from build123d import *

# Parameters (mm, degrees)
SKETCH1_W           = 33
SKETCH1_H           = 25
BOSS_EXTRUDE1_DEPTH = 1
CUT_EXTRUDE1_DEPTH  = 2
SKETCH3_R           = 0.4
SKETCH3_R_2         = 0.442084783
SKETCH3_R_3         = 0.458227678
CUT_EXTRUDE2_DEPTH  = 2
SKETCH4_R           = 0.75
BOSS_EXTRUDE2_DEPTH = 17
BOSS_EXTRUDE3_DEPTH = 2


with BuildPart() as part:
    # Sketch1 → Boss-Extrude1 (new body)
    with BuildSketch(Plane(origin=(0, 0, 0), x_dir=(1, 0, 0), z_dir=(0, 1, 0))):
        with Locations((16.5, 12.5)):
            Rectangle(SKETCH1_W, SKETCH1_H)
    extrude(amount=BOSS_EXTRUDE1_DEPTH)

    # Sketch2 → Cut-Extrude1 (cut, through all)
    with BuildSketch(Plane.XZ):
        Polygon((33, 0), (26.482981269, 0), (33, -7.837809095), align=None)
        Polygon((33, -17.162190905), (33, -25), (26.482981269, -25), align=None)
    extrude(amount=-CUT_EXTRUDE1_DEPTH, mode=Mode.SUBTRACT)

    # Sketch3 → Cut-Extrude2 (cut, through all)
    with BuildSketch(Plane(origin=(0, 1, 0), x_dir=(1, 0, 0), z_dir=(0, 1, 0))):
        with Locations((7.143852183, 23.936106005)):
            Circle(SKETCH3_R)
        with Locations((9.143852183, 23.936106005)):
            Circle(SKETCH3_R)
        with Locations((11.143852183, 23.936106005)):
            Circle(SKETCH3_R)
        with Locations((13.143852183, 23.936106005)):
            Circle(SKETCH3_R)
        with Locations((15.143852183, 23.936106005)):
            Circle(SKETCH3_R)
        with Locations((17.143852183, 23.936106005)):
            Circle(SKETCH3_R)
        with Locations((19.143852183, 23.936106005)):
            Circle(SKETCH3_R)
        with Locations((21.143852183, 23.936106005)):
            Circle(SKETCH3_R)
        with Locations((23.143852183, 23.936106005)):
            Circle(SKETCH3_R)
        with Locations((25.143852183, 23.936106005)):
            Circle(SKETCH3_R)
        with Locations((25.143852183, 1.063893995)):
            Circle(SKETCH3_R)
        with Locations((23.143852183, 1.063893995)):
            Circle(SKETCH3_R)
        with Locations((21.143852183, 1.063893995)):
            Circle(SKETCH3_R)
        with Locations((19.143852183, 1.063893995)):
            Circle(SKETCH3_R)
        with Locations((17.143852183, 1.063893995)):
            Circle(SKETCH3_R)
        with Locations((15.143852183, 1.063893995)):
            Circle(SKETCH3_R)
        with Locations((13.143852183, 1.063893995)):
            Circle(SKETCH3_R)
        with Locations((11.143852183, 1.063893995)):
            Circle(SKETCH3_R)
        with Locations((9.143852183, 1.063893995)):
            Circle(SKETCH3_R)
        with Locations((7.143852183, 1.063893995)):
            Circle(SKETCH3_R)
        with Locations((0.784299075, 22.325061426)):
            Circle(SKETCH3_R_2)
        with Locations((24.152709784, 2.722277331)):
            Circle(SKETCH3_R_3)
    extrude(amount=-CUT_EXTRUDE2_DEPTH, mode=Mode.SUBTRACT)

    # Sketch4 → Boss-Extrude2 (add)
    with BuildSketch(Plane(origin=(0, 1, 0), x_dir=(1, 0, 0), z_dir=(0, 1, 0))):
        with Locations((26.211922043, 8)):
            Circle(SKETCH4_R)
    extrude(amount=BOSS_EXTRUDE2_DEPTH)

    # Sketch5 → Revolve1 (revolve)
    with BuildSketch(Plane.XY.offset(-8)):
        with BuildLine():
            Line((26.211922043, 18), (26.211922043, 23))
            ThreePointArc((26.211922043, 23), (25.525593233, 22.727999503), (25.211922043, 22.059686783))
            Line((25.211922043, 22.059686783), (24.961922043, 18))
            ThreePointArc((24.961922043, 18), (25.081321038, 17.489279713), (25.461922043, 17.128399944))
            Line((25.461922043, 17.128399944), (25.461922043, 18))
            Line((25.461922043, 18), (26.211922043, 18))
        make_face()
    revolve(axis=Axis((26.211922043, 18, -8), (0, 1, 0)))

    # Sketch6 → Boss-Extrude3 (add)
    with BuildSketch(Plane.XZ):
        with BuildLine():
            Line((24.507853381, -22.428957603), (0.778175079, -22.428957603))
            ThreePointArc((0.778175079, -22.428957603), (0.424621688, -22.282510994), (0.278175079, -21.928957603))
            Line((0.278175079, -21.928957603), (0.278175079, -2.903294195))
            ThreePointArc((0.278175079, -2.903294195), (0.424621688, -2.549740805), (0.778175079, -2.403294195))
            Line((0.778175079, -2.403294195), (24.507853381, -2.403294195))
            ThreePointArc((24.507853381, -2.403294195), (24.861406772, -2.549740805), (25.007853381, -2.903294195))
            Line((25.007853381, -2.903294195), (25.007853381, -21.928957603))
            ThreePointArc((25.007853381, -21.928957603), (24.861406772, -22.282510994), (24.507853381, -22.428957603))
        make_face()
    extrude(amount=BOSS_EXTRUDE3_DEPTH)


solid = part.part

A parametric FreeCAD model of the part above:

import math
import FreeCAD as App
import Part
import Sketcher

V = App.Vector
Q = App.Units.Quantity

doc = App.newDocument("Part")
body = doc.addObject("PartDesign::Body", "Body")

# Sketch on XZ plane
sketch1 = body.newObject("Sketcher::SketchObject", "Sketch")
sketch1.AttachmentSupport = (doc.getObject("XZ_Plane"), [""])
sketch1.MapMode = "FlatFace"
sketch1.addGeometry([
    Part.LineSegment(V(0, -25, 0), V(0, 0, 0)),
    Part.LineSegment(V(0, 0, 0), V(33, 0, 0)),
    Part.LineSegment(V(33, 0, 0), V(33, -25, 0)),
    Part.LineSegment(V(33, -25, 0), V(0, -25, 0)),
], False)
sketch1.addConstraint([
    Sketcher.Constraint("Coincident", 0, 2, 1, 1),
    Sketcher.Constraint("Coincident", 1, 2, 2, 1),
    Sketcher.Constraint("Coincident", 2, 2, 3, 1),
    Sketcher.Constraint("Coincident", 3, 2, 0, 1),
    Sketcher.Constraint("Vertical", 0),
    Sketcher.Constraint("Horizontal", 1),
    Sketcher.Constraint("Vertical", 2),
    Sketcher.Constraint("Horizontal", 3),
    Sketcher.Constraint("Coincident", 0, 2, -1, 1),
    Sketcher.Constraint("DistanceX", 1, 1, 1, 2, Q("33 mm")),
    Sketcher.Constraint("DistanceY", 0, 1, 0, 2, Q("25 mm")),
])
pad1 = body.newObject("PartDesign::Pad", "Pad")
pad1.Profile = sketch1
pad1.Length = 1
pad1.Reversed = True

# Sketch on XZ plane
sketch2 = body.newObject("Sketcher::SketchObject", "Sketch001")
sketch2.AttachmentSupport = (doc.getObject("XZ_Plane"), [""])
sketch2.MapMode = "FlatFace"
sketch2.addGeometry([
    Part.LineSegment(V(33, 0, 0), V(26, 0, 0)),  # 0
    Part.LineSegment(V(26, 0, 0), V(33, -8, 0)),  # 1
    Part.LineSegment(V(33, -8, 0), V(33, 0, 0)),  # 2
    Part.LineSegment(V(33, -25, 0), V(33, -17, 0)),  # 3
    Part.LineSegment(V(33, -17, 0), V(26, -25, 0)),  # 4
    Part.LineSegment(V(26, -25, 0), V(33, -25, 0)),  # 5
], False)
sketch2.addConstraint([
    Sketcher.Constraint("Coincident", 0, 2, 1, 1),
    Sketcher.Constraint("Coincident", 1, 2, 2, 1),
    Sketcher.Constraint("Coincident", 2, 2, 0, 1),
    Sketcher.Constraint("Coincident", 3, 2, 4, 1),
    Sketcher.Constraint("Coincident", 4, 2, 5, 1),
    Sketcher.Constraint("Coincident", 5, 2, 3, 1),
    Sketcher.Constraint("Horizontal", 0),
    Sketcher.Constraint("Vertical", 2),
    Sketcher.Constraint("Vertical", 3),
    Sketcher.Constraint("Horizontal", 5),
    Sketcher.Constraint("PointOnObject", 0, 2, -1),
    Sketcher.Constraint("Vertical", 2, 2, 3, 2),
    Sketcher.Constraint("Vertical", 0, 2, 4, 2),
    Sketcher.Constraint("Equal", 2, 3),
    Sketcher.Constraint("DistanceX", -1, 1, 1, 2, Q("33 mm")),
    Sketcher.Constraint("DistanceY", 4, 2, -1, 1, Q("25 mm")),
    Sketcher.Constraint("DistanceX", 0, 2, 0, 1, Q("6.517019 mm")),
    Sketcher.Constraint("DistanceY", 2, 1, 2, 2, Q("7.837809 mm")),
])
pocket1 = body.newObject("PartDesign::Pocket", "Pocket")
pocket1.Profile = sketch2
pocket1.Type = "ThroughAll"

# Sketch on XZ plane
sketch3 = body.newObject("Sketcher::SketchObject", "Sketch002")
sketch3.AttachmentSupport = (doc.getObject("XZ_Plane"), [""])
sketch3.MapMode = "FlatFace"
sketch3.AttachmentOffset = App.Placement(V(0, 0, -1), App.Rotation())
sketch3.addGeometry([
    Part.Circle(V(7.14, -23.94, 0), V(0, 0, 1), 0.4),  # 0
    Part.Circle(V(9.14, -23.94, 0), V(0, 0, 1), 0.4),  # 1
    Part.Circle(V(11.14, -23.94, 0), V(0, 0, 1), 0.4),  # 2
    Part.Circle(V(13.14, -23.94, 0), V(0, 0, 1), 0.4),  # 3
    Part.Circle(V(15.14, -23.94, 0), V(0, 0, 1), 0.4),  # 4
    Part.Circle(V(17.14, -23.94, 0), V(0, 0, 1), 0.4),  # 5
    Part.Circle(V(19.14, -23.94, 0), V(0, 0, 1), 0.4),  # 6
    Part.Circle(V(21.14, -23.94, 0), V(0, 0, 1), 0.4),  # 7
    Part.Circle(V(23.14, -23.94, 0), V(0, 0, 1), 0.4),  # 8
    Part.Circle(V(25.14, -23.94, 0), V(0, 0, 1), 0.4),  # 9
    Part.Circle(V(25.14, -1.06, 0), V(0, 0, 1), 0.4),  # 10
    Part.Circle(V(23.14, -1.06, 0), V(0, 0, 1), 0.4),  # 11
    Part.Circle(V(21.14, -1.06, 0), V(0, 0, 1), 0.4),  # 12
    Part.Circle(V(19.14, -1.06, 0), V(0, 0, 1), 0.4),  # 13
    Part.Circle(V(17.14, -1.06, 0), V(0, 0, 1), 0.4),  # 14
    Part.Circle(V(15.14, -1.06, 0), V(0, 0, 1), 0.4),  # 15
    Part.Circle(V(13.14, -1.06, 0), V(0, 0, 1), 0.4),  # 16
    Part.Circle(V(11.14, -1.06, 0), V(0, 0, 1), 0.4),  # 17
    Part.Circle(V(9.14, -1.06, 0), V(0, 0, 1), 0.4),  # 18
    Part.Circle(V(7.14, -1.06, 0), V(0, 0, 1), 0.4),  # 19
    Part.Circle(V(0.78, -22.33, 0), V(0, 0, 1), 0.44),  # 20
    Part.Circle(V(24.15, -2.72, 0), V(0, 0, 1), 0.46),  # 21
], False)
sketch3.addConstraint([
    Sketcher.Constraint("Equal", 0, 1),
    Sketcher.Constraint("Equal", 1, 2),
    Sketcher.Constraint("Equal", 2, 3),
    Sketcher.Constraint("Equal", 3, 4),
    Sketcher.Constraint("Equal", 4, 5),
    Sketcher.Constraint("Equal", 5, 6),
    Sketcher.Constraint("Equal", 6, 7),
    Sketcher.Constraint("Equal", 7, 8),
    Sketcher.Constraint("Equal", 8, 9),
    Sketcher.Constraint("Equal", 9, 10),
    Sketcher.Constraint("Equal", 10, 11),
    Sketcher.Constraint("Equal", 11, 12),
    Sketcher.Constraint("Equal", 12, 13),
    Sketcher.Constraint("Equal", 13, 14),
    Sketcher.Constraint("Equal", 14, 15),
    Sketcher.Constraint("Equal", 15, 16),
    Sketcher.Constraint("Equal", 16, 17),
    Sketcher.Constraint("Equal", 17, 18),
    Sketcher.Constraint("Equal", 18, 19),
    Sketcher.Constraint("Horizontal", 0, 3, 1, 3),
    Sketcher.Constraint("Horizontal", 1, 3, 2, 3),
    Sketcher.Constraint("Horizontal", 2, 3, 3, 3),
    Sketcher.Constraint("Horizontal", 3, 3, 4, 3),
    Sketcher.Constraint("Horizontal", 4, 3, 5, 3),
    Sketcher.Constraint("Horizontal", 5, 3, 6, 3),
    Sketcher.Constraint("Horizontal", 6, 3, 7, 3),
    Sketcher.Constraint("Horizontal", 7, 3, 8, 3),
    Sketcher.Constraint("Horizontal", 8, 3, 9, 3),
    Sketcher.Constraint("Horizontal", 10, 3, 11, 3),
    Sketcher.Constraint("Horizontal", 11, 3, 12, 3),
    Sketcher.Constraint("Horizontal", 12, 3, 13, 3),
    Sketcher.Constraint("Horizontal", 13, 3, 14, 3),
    Sketcher.Constraint("Horizontal", 14, 3, 15, 3),
    Sketcher.Constraint("Horizontal", 15, 3, 16, 3),
    Sketcher.Constraint("Horizontal", 16, 3, 17, 3),
    Sketcher.Constraint("Horizontal", 17, 3, 18, 3),
    Sketcher.Constraint("Horizontal", 18, 3, 19, 3),
    Sketcher.Constraint("Vertical", 9, 3, 10, 3),
    Sketcher.Constraint("Vertical", 8, 3, 11, 3),
    Sketcher.Constraint("Vertical", 7, 3, 12, 3),
    Sketcher.Constraint("Vertical", 6, 3, 13, 3),
    Sketcher.Constraint("Vertical", 5, 3, 14, 3),
    Sketcher.Constraint("Vertical", 4, 3, 15, 3),
    Sketcher.Constraint("Vertical", 3, 3, 16, 3),
    Sketcher.Constraint("Vertical", 2, 3, 17, 3),
    Sketcher.Constraint("Vertical", 1, 3, 18, 3),
    Sketcher.Constraint("Vertical", 0, 3, 19, 3),
    Sketcher.Constraint("Diameter", 0, Q("0.8 mm")),
    Sketcher.Constraint("DistanceX", 0, 3, 1, 3, Q("2 mm")),
    Sketcher.Constraint("DistanceX", 1, 3, 2, 3, Q("2 mm")),
    Sketcher.Constraint("DistanceX", 2, 3, 3, 3, Q("2 mm")),
    Sketcher.Constraint("DistanceX", 3, 3, 4, 3, Q("2 mm")),
    Sketcher.Constraint("DistanceX", 4, 3, 5, 3, Q("2 mm")),
    Sketcher.Constraint("DistanceX", 5, 3, 6, 3, Q("2 mm")),
    Sketcher.Constraint("DistanceX", 6, 3, 7, 3, Q("2 mm")),
    Sketcher.Constraint("DistanceX", 7, 3, 8, 3, Q("2 mm")),
    Sketcher.Constraint("DistanceX", 8, 3, 9, 3, Q("2 mm")),
    Sketcher.Constraint("Diameter", 20, Q("0.88417 mm")),
    Sketcher.Constraint("Diameter", 21, Q("0.916455 mm")),
    Sketcher.Constraint("DistanceX", -1, 1, 20, 3, Q("0.784299 mm")),
    Sketcher.Constraint("DistanceY", 20, 3, -1, 1, Q("22.325061 mm")),
    Sketcher.Constraint("DistanceX", -1, 1, 21, 3, Q("24.15271 mm")),
    Sketcher.Constraint("DistanceX", -1, 1, 0, 3, Q("7.143852 mm")),
    Sketcher.Constraint("DistanceY", 0, 3, -1, 1, Q("23.936106 mm")),
    Sketcher.Constraint("DistanceY", 10, 3, -1, 1, Q("1.063894 mm")),
    Sketcher.Constraint("DistanceY", 21, 3, -1, 1, Q("2.722277 mm")),
])
pocket2 = body.newObject("PartDesign::Pocket", "Pocket001")
pocket2.Profile = sketch3
pocket2.Type = "ThroughAll"
pocket2.Reversed = True

# Sketch on XZ plane
sketch4 = body.newObject("Sketcher::SketchObject", "Sketch003")
sketch4.AttachmentSupport = (doc.getObject("XZ_Plane"), [""])
sketch4.MapMode = "FlatFace"
sketch4.AttachmentOffset = App.Placement(V(0, 0, -1), App.Rotation())
sketch4.addGeometry(Part.Circle(V(26.2, -8, 0), V(0, 0, 1), 0.8), False)
sketch4.addConstraint([
    Sketcher.Constraint("Diameter", 0, Q("1.5 mm")),
    Sketcher.Constraint("DistanceY", 0, 3, -1, 1, Q("8 mm")),
    Sketcher.Constraint("DistanceX", -1, 1, 0, 3, Q("26.211922 mm")),
])
pad2 = body.newObject("PartDesign::Pad", "Pad001")
pad2.Profile = sketch4
pad2.Length = 17
pad2.Reversed = True

# Sketch on XY plane
sketch5 = body.newObject("Sketcher::SketchObject", "Sketch004")
sketch5.AttachmentSupport = (doc.getObject("XY_Plane"), [""])
sketch5.MapMode = "FlatFace"
sketch5.AttachmentOffset = App.Placement(V(0, 0, -8), App.Rotation())
sketch5.addGeometry([
    Part.LineSegment(V(26.2, 18, 0), V(26.2, 23, 0)),  # 0
    Part.ArcOfCircle(Part.Circle(V(26.2, 22, 0), V(0, 0, 1), 1), math.radians(90), math.radians(176)),  # 1
    Part.LineSegment(V(25.2, 22.1, 0), V(25, 18, 0)),  # 2
    Part.ArcOfCircle(Part.Circle(V(25.9, 17.9, 0), V(0, 0, 1), 0.9), math.radians(176), math.radians(243)),  # 3
    Part.LineSegment(V(25.5, 17.1, 0), V(25.5, 18, 0)),  # 4
    Part.LineSegment(V(25.5, 18, 0), V(26.2, 18, 0)),  # 5
], False)
sketch5.addGeometry(Part.LineSegment(V(26.2, 17.1, 0), V(26.2, 23, 0)), True)  # axis
sketch5.addConstraint([
    Sketcher.Constraint("Coincident", 0, 2, 1, 1),
    Sketcher.Constraint("Tangent", 1, 2, 2, 1),
    Sketcher.Constraint("Tangent", 2, 2, 3, 1),
    Sketcher.Constraint("Coincident", 3, 2, 4, 1),
    Sketcher.Constraint("Coincident", 4, 2, 5, 1),
    Sketcher.Constraint("Coincident", 5, 2, 0, 1),
    Sketcher.Constraint("Vertical", 0),
    Sketcher.Constraint("Vertical", 4),
    Sketcher.Constraint("Horizontal", 5),
    Sketcher.Constraint("Vertical", 6),
    Sketcher.Constraint("Coincident", 6, 2, 0, 2),
    Sketcher.Constraint("Horizontal", 2, 2, 4, 2),
    Sketcher.Constraint("Horizontal", 3, 2, 6, 1),
    Sketcher.Constraint("Vertical", 1, 3, 0, 2),
    Sketcher.Constraint("DistanceY", 0, 1, 0, 2, Q("5 mm")),
    Sketcher.Constraint("DistanceY", -1, 1, 0, 2, Q("23 mm")),
    Sketcher.Constraint("DistanceX", 1, 2, 1, 3, Q("1 mm")),
    Sketcher.Constraint("DistanceX", 5, 1, 5, 2, Q("0.75 mm")),
    Sketcher.Constraint("DistanceX", 2, 2, 3, 2, Q("0.5 mm")),
    Sketcher.Constraint("DistanceY", 4, 1, 4, 2, Q("0.8716 mm")),
    Sketcher.Constraint("DistanceX", -1, 1, 1, 3, Q("26.211922 mm")),
])
revolution = body.newObject("PartDesign::Revolution", "Revolution")
revolution.Profile = sketch5
revolution.ReferenceAxis = (sketch5, ["Axis0"])
revolution.Angle = 360

# Sketch on XZ plane
sketch6 = body.newObject("Sketcher::SketchObject", "Sketch005")
sketch6.AttachmentSupport = (doc.getObject("XZ_Plane"), [""])
sketch6.MapMode = "FlatFace"
sketch6.addGeometry([
    Part.LineSegment(V(0.78, -22.43, 0), V(24.51, -22.43, 0)),  # 0
    Part.ArcOfCircle(Part.Circle(V(24.51, -21.93, 0), V(0, 0, 1), 0.5), math.radians(-90), math.radians(0)),  # 1
    Part.LineSegment(V(25.01, -21.93, 0), V(25.01, -2.9, 0)),  # 2
    Part.ArcOfCircle(Part.Circle(V(24.51, -2.9, 0), V(0, 0, 1), 0.5), math.radians(0), math.radians(90)),  # 3
    Part.LineSegment(V(24.51, -2.4, 0), V(0.78, -2.4, 0)),  # 4
    Part.ArcOfCircle(Part.Circle(V(0.78, -2.9, 0), V(0, 0, 1), 0.5), math.radians(90), math.radians(180)),  # 5
    Part.LineSegment(V(0.28, -2.9, 0), V(0.28, -21.93, 0)),  # 6
    Part.ArcOfCircle(Part.Circle(V(0.78, -21.93, 0), V(0, 0, 1), 0.5), math.radians(180), math.radians(270)),  # 7
], False)
sketch6.addConstraint([
    Sketcher.Constraint("Tangent", 0, 2, 1, 1),
    Sketcher.Constraint("Tangent", 1, 2, 2, 1),
    Sketcher.Constraint("Tangent", 2, 2, 3, 1),
    Sketcher.Constraint("Tangent", 3, 2, 4, 1),
    Sketcher.Constraint("Tangent", 4, 2, 5, 1),
    Sketcher.Constraint("Tangent", 5, 2, 6, 1),
    Sketcher.Constraint("Tangent", 6, 2, 7, 1),
    Sketcher.Constraint("Tangent", 7, 2, 0, 1),
    Sketcher.Constraint("Horizontal", 0),
    Sketcher.Constraint("Vertical", 2),
    Sketcher.Constraint("Horizontal", 4),
    Sketcher.Constraint("Vertical", 6),
    Sketcher.Constraint("Equal", 1, 3),
    Sketcher.Constraint("Equal", 3, 5),
    Sketcher.Constraint("Equal", 5, 7),
    Sketcher.Constraint("Radius", 1, Q("0.5 mm")),
    Sketcher.Constraint("DistanceX", 0, 1, 0, 2, Q("23.729678 mm")),
    Sketcher.Constraint("DistanceY", 2, 1, 2, 2, Q("19.025663 mm")),
    Sketcher.Constraint("DistanceX", -1, 1, 1, 3, Q("24.507853 mm")),
    Sketcher.Constraint("DistanceY", 1, 3, -1, 1, Q("21.928958 mm")),
])
pad3 = body.newObject("PartDesign::Pad", "Pad002")
pad3.Profile = sketch6
pad3.Length = 2

doc.recompute()
